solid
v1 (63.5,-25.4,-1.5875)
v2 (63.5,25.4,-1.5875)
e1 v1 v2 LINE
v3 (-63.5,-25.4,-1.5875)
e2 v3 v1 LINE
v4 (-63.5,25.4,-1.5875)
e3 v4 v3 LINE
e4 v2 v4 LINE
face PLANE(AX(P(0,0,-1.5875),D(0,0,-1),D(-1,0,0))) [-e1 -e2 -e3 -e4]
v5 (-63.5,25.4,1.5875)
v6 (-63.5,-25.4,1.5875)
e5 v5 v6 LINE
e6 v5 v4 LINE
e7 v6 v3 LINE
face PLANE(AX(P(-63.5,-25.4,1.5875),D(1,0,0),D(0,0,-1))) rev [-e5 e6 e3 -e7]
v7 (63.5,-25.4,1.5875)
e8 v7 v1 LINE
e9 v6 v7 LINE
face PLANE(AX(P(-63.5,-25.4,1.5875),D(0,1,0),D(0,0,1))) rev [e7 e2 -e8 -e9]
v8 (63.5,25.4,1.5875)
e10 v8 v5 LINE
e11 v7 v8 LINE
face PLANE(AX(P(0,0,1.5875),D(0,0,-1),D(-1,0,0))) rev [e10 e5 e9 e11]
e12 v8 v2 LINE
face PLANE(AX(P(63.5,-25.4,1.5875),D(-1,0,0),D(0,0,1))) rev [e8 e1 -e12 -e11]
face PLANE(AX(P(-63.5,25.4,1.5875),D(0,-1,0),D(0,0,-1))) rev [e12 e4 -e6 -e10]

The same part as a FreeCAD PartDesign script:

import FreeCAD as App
import Part
import Sketcher
from FreeCAD import Vector
Q = App.Units.Quantity

doc = App.newDocument("Part")
body = doc.addObject("PartDesign::Body", "Body")

# Sketch on XY plane
sketch1 = body.newObject("Sketcher::SketchObject", "Sketch")
sketch1.AttachmentSupport = (doc.getObject("XY_Plane"), [""])
sketch1.MapMode = "FlatFace"
sketch1.addGeometry([
    Part.LineSegment(Vector(-64, 25, 0), Vector(-64, -25, 0)),
    Part.LineSegment(Vector(-64, -25, 0), Vector(64, -25, 0)),
    Part.LineSegment(Vector(64, -25, 0), Vector(64, 25, 0)),
    Part.LineSegment(Vector(64, 25, 0), Vector(-64, 25, 0)),
], False)
sketch1.addConstraint([
    Sketcher.Constraint("Coincident", 0, 2, 1, 1),
    Sketcher.Constraint("Coincident", 1, 2, 2, 1),
    Sketcher.Constraint("Coincident", 2, 2, 3, 1),
    Sketcher.Constraint("Coincident", 3, 2, 0, 1),
    Sketcher.Constraint("Vertical", 0),
    Sketcher.Constraint("Horizontal", 1),
    Sketcher.Constraint("Vertical", 2),
    Sketcher.Constraint("Horizontal", 3),
    Sketcher.Constraint("Symmetric", 0, 2, 2, 2, -1, 1),
    Sketcher.Constraint("DistanceX", 1, 1, 1, 2, Q("5 in")),
    Sketcher.Constraint("DistanceY", 0, 2, 0, 1, Q("2 in")),
])
pad1 = body.newObject("PartDesign::Pad", "Pad")
pad1.Profile = sketch1
pad1.Length = Q("0.125 in")
pad1.Midplane = True

doc.recompute()
